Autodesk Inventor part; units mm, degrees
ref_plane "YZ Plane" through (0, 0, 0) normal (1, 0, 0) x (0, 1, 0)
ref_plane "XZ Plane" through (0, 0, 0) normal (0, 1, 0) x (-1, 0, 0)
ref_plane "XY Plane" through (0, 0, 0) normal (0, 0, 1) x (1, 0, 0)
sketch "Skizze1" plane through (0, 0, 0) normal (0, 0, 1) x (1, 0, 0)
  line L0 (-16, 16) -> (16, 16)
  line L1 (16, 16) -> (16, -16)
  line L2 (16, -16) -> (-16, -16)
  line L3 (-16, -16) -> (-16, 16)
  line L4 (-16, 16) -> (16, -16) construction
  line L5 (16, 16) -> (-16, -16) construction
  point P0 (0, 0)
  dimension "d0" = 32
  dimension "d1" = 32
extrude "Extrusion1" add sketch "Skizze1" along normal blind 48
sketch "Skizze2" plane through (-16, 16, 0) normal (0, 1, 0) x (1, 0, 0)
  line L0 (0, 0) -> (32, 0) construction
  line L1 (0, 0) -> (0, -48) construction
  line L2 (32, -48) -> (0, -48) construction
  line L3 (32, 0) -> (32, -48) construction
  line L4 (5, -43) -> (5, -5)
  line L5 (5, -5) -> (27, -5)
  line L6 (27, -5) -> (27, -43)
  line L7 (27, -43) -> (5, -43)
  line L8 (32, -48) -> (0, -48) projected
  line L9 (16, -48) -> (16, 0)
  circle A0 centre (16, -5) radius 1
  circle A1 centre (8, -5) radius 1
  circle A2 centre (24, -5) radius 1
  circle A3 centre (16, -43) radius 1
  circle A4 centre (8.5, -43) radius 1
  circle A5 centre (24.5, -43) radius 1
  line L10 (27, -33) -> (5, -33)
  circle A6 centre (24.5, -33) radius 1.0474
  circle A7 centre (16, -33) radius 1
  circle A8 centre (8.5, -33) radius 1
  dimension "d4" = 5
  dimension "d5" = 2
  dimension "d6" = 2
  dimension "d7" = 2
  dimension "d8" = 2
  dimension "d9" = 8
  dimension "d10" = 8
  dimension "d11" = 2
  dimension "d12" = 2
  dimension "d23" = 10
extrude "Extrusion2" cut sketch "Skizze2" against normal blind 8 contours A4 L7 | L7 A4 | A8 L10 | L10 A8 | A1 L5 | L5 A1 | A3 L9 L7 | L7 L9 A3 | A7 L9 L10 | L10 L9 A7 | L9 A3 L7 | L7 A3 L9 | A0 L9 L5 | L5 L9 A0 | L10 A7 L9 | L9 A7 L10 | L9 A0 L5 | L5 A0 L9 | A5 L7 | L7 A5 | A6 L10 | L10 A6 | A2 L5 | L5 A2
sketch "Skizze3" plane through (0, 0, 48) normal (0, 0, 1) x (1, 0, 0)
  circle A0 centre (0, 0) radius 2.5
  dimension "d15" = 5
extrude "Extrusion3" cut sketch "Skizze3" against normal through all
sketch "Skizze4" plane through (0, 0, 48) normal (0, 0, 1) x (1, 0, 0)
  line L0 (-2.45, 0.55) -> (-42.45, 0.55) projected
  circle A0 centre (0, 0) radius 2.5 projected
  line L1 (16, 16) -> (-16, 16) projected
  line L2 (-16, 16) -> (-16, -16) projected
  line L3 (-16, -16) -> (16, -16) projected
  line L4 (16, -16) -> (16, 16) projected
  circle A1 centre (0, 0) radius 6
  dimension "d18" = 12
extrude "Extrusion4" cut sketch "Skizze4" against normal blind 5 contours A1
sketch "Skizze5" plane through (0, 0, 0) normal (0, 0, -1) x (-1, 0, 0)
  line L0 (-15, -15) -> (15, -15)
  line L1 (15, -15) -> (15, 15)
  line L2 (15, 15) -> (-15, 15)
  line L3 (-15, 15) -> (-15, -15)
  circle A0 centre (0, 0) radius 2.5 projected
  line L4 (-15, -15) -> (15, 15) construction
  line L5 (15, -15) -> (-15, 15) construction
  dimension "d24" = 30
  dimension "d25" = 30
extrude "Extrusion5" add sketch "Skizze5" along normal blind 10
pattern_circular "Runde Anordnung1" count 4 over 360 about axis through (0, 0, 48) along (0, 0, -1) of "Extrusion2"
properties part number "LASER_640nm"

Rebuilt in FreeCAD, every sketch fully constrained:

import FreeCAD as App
import Part
import Sketcher
Q = App.Units.Quantity

doc = App.newDocument("Part")
params = doc.addObject("Spreadsheet::Sheet", "Params")
for row, (alias, value) in enumerate([
    ("sketch1_width", "32 mm"),
    ("pad1_length", "48 mm"),
    ("sketch2_diameter", "2 mm"),
    ("pocket1_length", "8 mm"),
    ("sketch3_diameter", "5 mm"),
    ("sketch4_diameter", "12 mm"),
    ("sketch4_diameter2", "5 mm"),
    ("pocket3_length", "5 mm"),
    ("sketch5_width", "30 mm"),
    ("sketch5_diameter", "5 mm"),
    ("pad2_length", "10 mm"),
], start=1):
    params.set(f"A{row}", alias)
    params.set(f"B{row}", "=" + value)
    params.setAlias(f"B{row}", alias)

body = doc.addObject("PartDesign::Body", "Body")

# Sketch on XY plane
sketch1 = doc.addObject("Sketcher::SketchObject", "Sketch")
body.addObject(sketch1)
sketch1.AttachmentSupport = (doc.XY_Plane, [""])
sketch1.MapMode = "FlatFace"
sketch1.addGeometry(Part.LineSegment(App.Vector(16, 16, 0), App.Vector(-16, 16, 0)), False)
sketch1.addGeometry(Part.LineSegment(App.Vector(-16, 16, 0), App.Vector(-16, -16, 0)), False)
sketch1.addGeometry(Part.LineSegment(App.Vector(-16, -16, 0), App.Vector(16, -16, 0)), False)
sketch1.addGeometry(Part.LineSegment(App.Vector(16, -16, 0), App.Vector(16, 16, 0)), False)
sketch1.addConstraint(Sketcher.Constraint("Coincident", 0, 2, 1, 1))
sketch1.addConstraint(Sketcher.Constraint("Coincident", 1, 2, 2, 1))
sketch1.addConstraint(Sketcher.Constraint("Coincident", 2, 2, 3, 1))
sketch1.addConstraint(Sketcher.Constraint("Coincident", 3, 2, 0, 1))
sketch1.addConstraint(Sketcher.Constraint("Horizontal", 0))
sketch1.addConstraint(Sketcher.Constraint("Vertical", 1))
sketch1.addConstraint(Sketcher.Constraint("Horizontal", 2))
sketch1.addConstraint(Sketcher.Constraint("Vertical", 3))
sketch1.addConstraint(Sketcher.Constraint("Symmetric", 0, 2, 2, 2, -1, 1))
sketch1.addConstraint(Sketcher.Constraint("Equal", 2, 1))
sketch1.addConstraint(Sketcher.Constraint("DistanceX", 0, 2, 0, 1, Q("32 mm")))
sketch1.setExpression("Constraints[10]", "Params.sketch1_width")
pad1 = doc.addObject("PartDesign::Pad", "Pad")
body.addObject(pad1)
pad1.Profile = sketch1
pad1.setExpression("Length", "Params.pad1_length")

# Sketch on XZ plane
sketch2 = doc.addObject("Sketcher::SketchObject", "Sketch001")
body.addObject(sketch2)
sketch2.AttachmentSupport = (doc.XZ_Plane, [""])
sketch2.MapMode = "FlatFace"
sketch2.AttachmentOffset = App.Placement(App.Vector(0, 0, -16), App.Rotation())
sketch2.addGeometry(Part.Circle(App.Vector(-7.5, 43, 0), App.Vector(0, 0, 1), 1), False)
sketch2.addGeometry(Part.Circle(App.Vector(-7.5, 33, 0), App.Vector(0, 0, 1), 1), False)
sketch2.addGeometry(Part.Circle(App.Vector(-8, 5, 0), App.Vector(0, 0, 1), 1), False)
sketch2.addGeometry(Part.Circle(App.Vector(0, 43, 0), App.Vector(0, 0, 1), 1), False)
sketch2.addGeometry(Part.Circle(App.Vector(0, 33, 0), App.Vector(0, 0, 1), 1), False)
sketch2.addGeometry(Part.Circle(App.Vector(0, 5, 0), App.Vector(0, 0, 1), 1), False)
sketch2.addGeometry(Part.Circle(App.Vector(8.5, 43, 0), App.Vector(0, 0, 1), 1), False)
sketch2.addGeometry(Part.Circle(App.Vector(8.5, 33, 0), App.Vector(0, 0, 1), 1), False)
sketch2.addGeometry(Part.Circle(App.Vector(8, 5, 0), App.Vector(0, 0, 1), 1), False)
sketch2.addConstraint(Sketcher.Constraint("Equal", 0, 1))
sketch2.addConstraint(Sketcher.Constraint("Equal", 1, 2))
sketch2.addConstraint(Sketcher.Constraint("Equal", 2, 3))
sketch2.addConstraint(Sketcher.Constraint("Equal", 3, 4))
sketch2.addConstraint(Sketcher.Constraint("Equal", 4, 5))
sketch2.addConstraint(Sketcher.Constraint("Equal", 5, 6))
sketch2.addConstraint(Sketcher.Constraint("Equal", 6, 8))
sketch2.addConstraint(Sketcher.Constraint("Symmetric", 2, 3, 8, 3, -2))
sketch2.addConstraint(Sketcher.Constraint("PointOnObject", 3, 3, -2))
sketch2.addConstraint(Sketcher.Constraint("PointOnObject", 4, 3, -2))
sketch2.addConstraint(Sketcher.Constraint("PointOnObject", 5, 3, -2))
sketch2.addConstraint(Sketcher.Constraint("Horizontal", 0, 3, 3, 3))
sketch2.addConstraint(Sketcher.Constraint("Horizontal", 1, 3, 4, 3))
sketch2.addConstraint(Sketcher.Constraint("Horizontal", 2, 3, 5, 3))
sketch2.addConstraint(Sketcher.Constraint("Horizontal", 3, 3, 6, 3))
sketch2.addConstraint(Sketcher.Constraint("Horizontal", 4, 3, 7, 3))
sketch2.addConstraint(Sketcher.Constraint("Vertical", 0, 3, 1, 3))
sketch2.addConstraint(Sketcher.Constraint("Vertical", 6, 3, 7, 3))
sketch2.addConstraint(Sketcher.Constraint("Diameter", 0, Q("2 mm")))
sketch2.addConstraint(Sketcher.Constraint("DistanceX", 2, 3, -1, 1, Q("8 mm")))
sketch2.addConstraint(Sketcher.Constraint("DistanceY", -1, 1, 2, 3, Q("5 mm")))
sketch2.addConstraint(Sketcher.Constraint("DistanceY", 1, 3, 0, 3, Q("10 mm")))
sketch2.addConstraint(Sketcher.Constraint("DistanceY", -1, 1, 0, 3, Q("43 mm")))
sketch2.addConstraint(Sketcher.Constraint("DistanceX", 0, 3, 6, 3, Q("16 mm")))
sketch2.addConstraint(Sketcher.Constraint("Diameter", 7, Q("2.0948 mm")))
sketch2.addConstraint(Sketcher.Constraint("DistanceX", 0, 3, -1, 1, Q("7.5 mm")))
sketch2.setExpression("Constraints[18]", "Params.sketch2_diameter")
pocket1 = doc.addObject("PartDesign::Pocket", "Pocket")
body.addObject(pocket1)
pocket1.Profile = sketch2
pocket1.setExpression("Length", "Params.pocket1_length")
pocket1.Reversed = True

# Sketch on XY plane
sketch3 = doc.addObject("Sketcher::SketchObject", "Sketch002")
body.addObject(sketch3)
sketch3.AttachmentSupport = (doc.XY_Plane, [""])
sketch3.MapMode = "FlatFace"
sketch3.AttachmentOffset = App.Placement(App.Vector(0, 0, 48), App.Rotation())
sketch3.addGeometry(Part.Circle(App.Vector(0, 0, 0), App.Vector(0, 0, 1), 2.5), False)
sketch3.addConstraint(Sketcher.Constraint("Coincident", 0, 3, -1, 1))
sketch3.addConstraint(Sketcher.Constraint("Diameter", 0, Q("5 mm")))
sketch3.setExpression("Constraints[1]", "Params.sketch3_diameter")
pocket2 = doc.addObject("PartDesign::Pocket", "Pocket001")
body.addObject(pocket2)
pocket2.Profile = sketch3
pocket2.Type = "ThroughAll"

# Sketch on XY plane
sketch4 = doc.addObject("Sketcher::SketchObject", "Sketch003")
body.addObject(sketch4)
sketch4.AttachmentSupport = (doc.XY_Plane, [""])
sketch4.MapMode = "FlatFace"
sketch4.AttachmentOffset = App.Placement(App.Vector(0, 0, 48), App.Rotation())
sketch4.addGeometry(Part.Circle(App.Vector(0, 0, 0), App.Vector(0, 0, 1), 6), False)
sketch4.addGeometry(Part.Circle(App.Vector(0, 0, 0), App.Vector(0, 0, 1), 2.5), False)
sketch4.addConstraint(Sketcher.Constraint("Coincident", 0, 3, -1, 1))
sketch4.addConstraint(Sketcher.Constraint("Coincident", 1, 3, -1, 1))
sketch4.addConstraint(Sketcher.Constraint("Diameter", 0, Q("12 mm")))
sketch4.addConstraint(Sketcher.Constraint("Diameter", 1, Q("5 mm")))
sketch4.setExpression("Constraints[2]", "Params.sketch4_diameter")
sketch4.setExpression("Constraints[3]", "Params.sketch4_diameter2")
pocket3 = doc.addObject("PartDesign::Pocket", "Pocket002")
body.addObject(pocket3)
pocket3.Profile = sketch4
pocket3.setExpression("Length", "Params.pocket3_length")

# Sketch on XY plane
sketch5 = doc.addObject("Sketcher::SketchObject", "Sketch004")
body.addObject(sketch5)
sketch5.AttachmentSupport = (doc.XY_Plane, [""])
sketch5.MapMode = "FlatFace"
sketch5.addGeometry(Part.LineSegment(App.Vector(15, 15, 0), App.Vector(15, -15, 0)), False)
sketch5.addGeometry(Part.LineSegment(App.Vector(15, -15, 0), App.Vector(-15, -15, 0)), False)
sketch5.addGeometry(Part.LineSegment(App.Vector(-15, -15, 0), App.Vector(-15, 15, 0)), False)
sketch5.addGeometry(Part.LineSegment(App.Vector(-15, 15, 0), App.Vector(15, 15, 0)), False)
sketch5.addGeometry(Part.Circle(App.Vector(0, 0, 0), App.Vector(0, 0, 1), 2.5), False)
sketch5.addConstraint(Sketcher.Constraint("Coincident", 0, 2, 1, 1))
sketch5.addConstraint(Sketcher.Constraint("Coincident", 1, 2, 2, 1))
sketch5.addConstraint(Sketcher.Constraint("Coincident", 2, 2, 3, 1))
sketch5.addConstraint(Sketcher.Constraint("Coincident", 3, 2, 0, 1))
sketch5.addConstraint(Sketcher.Constraint("Vertical", 0))
sketch5.addConstraint(Sketcher.Constraint("Horizontal", 1))
sketch5.addConstraint(Sketcher.Constraint("Vertical", 2))
sketch5.addConstraint(Sketcher.Constraint("Horizontal", 3))
sketch5.addConstraint(Sketcher.Constraint("Coincident", 4, 3, -1, 1))
sketch5.addConstraint(Sketcher.Constraint("Symmetric", 0, 2, 2, 2, -1, 1))
sketch5.addConstraint(Sketcher.Constraint("Equal", 3, 0))
sketch5.addConstraint(Sketcher.Constraint("DistanceX", 1, 2, 1, 1, Q("30 mm")))
sketch5.addConstraint(Sketcher.Constraint("Diameter", 4, Q("5 mm")))
sketch5.setExpression("Constraints[11]", "Params.sketch5_width")
sketch5.setExpression("Constraints[12]", "Params.sketch5_diameter")
pad2 = doc.addObject("PartDesign::Pad", "Pad001")
body.addObject(pad2)
pad2.Profile = sketch5
pad2.setExpression("Length", "Params.pad2_length")
pad2.Reversed = True
doc.recompute()

polarpattern = doc.addObject("PartDesign::PolarPattern", "PolarPattern")
body.addObject(polarpattern)
polarpattern.Originals = [pocket1]
polarpattern.Axis = (doc.Z_Axis, [""])
polarpattern.Angle = 360
polarpattern.Occurrences = 4
body.Tip = polarpattern

doc.recompute()
